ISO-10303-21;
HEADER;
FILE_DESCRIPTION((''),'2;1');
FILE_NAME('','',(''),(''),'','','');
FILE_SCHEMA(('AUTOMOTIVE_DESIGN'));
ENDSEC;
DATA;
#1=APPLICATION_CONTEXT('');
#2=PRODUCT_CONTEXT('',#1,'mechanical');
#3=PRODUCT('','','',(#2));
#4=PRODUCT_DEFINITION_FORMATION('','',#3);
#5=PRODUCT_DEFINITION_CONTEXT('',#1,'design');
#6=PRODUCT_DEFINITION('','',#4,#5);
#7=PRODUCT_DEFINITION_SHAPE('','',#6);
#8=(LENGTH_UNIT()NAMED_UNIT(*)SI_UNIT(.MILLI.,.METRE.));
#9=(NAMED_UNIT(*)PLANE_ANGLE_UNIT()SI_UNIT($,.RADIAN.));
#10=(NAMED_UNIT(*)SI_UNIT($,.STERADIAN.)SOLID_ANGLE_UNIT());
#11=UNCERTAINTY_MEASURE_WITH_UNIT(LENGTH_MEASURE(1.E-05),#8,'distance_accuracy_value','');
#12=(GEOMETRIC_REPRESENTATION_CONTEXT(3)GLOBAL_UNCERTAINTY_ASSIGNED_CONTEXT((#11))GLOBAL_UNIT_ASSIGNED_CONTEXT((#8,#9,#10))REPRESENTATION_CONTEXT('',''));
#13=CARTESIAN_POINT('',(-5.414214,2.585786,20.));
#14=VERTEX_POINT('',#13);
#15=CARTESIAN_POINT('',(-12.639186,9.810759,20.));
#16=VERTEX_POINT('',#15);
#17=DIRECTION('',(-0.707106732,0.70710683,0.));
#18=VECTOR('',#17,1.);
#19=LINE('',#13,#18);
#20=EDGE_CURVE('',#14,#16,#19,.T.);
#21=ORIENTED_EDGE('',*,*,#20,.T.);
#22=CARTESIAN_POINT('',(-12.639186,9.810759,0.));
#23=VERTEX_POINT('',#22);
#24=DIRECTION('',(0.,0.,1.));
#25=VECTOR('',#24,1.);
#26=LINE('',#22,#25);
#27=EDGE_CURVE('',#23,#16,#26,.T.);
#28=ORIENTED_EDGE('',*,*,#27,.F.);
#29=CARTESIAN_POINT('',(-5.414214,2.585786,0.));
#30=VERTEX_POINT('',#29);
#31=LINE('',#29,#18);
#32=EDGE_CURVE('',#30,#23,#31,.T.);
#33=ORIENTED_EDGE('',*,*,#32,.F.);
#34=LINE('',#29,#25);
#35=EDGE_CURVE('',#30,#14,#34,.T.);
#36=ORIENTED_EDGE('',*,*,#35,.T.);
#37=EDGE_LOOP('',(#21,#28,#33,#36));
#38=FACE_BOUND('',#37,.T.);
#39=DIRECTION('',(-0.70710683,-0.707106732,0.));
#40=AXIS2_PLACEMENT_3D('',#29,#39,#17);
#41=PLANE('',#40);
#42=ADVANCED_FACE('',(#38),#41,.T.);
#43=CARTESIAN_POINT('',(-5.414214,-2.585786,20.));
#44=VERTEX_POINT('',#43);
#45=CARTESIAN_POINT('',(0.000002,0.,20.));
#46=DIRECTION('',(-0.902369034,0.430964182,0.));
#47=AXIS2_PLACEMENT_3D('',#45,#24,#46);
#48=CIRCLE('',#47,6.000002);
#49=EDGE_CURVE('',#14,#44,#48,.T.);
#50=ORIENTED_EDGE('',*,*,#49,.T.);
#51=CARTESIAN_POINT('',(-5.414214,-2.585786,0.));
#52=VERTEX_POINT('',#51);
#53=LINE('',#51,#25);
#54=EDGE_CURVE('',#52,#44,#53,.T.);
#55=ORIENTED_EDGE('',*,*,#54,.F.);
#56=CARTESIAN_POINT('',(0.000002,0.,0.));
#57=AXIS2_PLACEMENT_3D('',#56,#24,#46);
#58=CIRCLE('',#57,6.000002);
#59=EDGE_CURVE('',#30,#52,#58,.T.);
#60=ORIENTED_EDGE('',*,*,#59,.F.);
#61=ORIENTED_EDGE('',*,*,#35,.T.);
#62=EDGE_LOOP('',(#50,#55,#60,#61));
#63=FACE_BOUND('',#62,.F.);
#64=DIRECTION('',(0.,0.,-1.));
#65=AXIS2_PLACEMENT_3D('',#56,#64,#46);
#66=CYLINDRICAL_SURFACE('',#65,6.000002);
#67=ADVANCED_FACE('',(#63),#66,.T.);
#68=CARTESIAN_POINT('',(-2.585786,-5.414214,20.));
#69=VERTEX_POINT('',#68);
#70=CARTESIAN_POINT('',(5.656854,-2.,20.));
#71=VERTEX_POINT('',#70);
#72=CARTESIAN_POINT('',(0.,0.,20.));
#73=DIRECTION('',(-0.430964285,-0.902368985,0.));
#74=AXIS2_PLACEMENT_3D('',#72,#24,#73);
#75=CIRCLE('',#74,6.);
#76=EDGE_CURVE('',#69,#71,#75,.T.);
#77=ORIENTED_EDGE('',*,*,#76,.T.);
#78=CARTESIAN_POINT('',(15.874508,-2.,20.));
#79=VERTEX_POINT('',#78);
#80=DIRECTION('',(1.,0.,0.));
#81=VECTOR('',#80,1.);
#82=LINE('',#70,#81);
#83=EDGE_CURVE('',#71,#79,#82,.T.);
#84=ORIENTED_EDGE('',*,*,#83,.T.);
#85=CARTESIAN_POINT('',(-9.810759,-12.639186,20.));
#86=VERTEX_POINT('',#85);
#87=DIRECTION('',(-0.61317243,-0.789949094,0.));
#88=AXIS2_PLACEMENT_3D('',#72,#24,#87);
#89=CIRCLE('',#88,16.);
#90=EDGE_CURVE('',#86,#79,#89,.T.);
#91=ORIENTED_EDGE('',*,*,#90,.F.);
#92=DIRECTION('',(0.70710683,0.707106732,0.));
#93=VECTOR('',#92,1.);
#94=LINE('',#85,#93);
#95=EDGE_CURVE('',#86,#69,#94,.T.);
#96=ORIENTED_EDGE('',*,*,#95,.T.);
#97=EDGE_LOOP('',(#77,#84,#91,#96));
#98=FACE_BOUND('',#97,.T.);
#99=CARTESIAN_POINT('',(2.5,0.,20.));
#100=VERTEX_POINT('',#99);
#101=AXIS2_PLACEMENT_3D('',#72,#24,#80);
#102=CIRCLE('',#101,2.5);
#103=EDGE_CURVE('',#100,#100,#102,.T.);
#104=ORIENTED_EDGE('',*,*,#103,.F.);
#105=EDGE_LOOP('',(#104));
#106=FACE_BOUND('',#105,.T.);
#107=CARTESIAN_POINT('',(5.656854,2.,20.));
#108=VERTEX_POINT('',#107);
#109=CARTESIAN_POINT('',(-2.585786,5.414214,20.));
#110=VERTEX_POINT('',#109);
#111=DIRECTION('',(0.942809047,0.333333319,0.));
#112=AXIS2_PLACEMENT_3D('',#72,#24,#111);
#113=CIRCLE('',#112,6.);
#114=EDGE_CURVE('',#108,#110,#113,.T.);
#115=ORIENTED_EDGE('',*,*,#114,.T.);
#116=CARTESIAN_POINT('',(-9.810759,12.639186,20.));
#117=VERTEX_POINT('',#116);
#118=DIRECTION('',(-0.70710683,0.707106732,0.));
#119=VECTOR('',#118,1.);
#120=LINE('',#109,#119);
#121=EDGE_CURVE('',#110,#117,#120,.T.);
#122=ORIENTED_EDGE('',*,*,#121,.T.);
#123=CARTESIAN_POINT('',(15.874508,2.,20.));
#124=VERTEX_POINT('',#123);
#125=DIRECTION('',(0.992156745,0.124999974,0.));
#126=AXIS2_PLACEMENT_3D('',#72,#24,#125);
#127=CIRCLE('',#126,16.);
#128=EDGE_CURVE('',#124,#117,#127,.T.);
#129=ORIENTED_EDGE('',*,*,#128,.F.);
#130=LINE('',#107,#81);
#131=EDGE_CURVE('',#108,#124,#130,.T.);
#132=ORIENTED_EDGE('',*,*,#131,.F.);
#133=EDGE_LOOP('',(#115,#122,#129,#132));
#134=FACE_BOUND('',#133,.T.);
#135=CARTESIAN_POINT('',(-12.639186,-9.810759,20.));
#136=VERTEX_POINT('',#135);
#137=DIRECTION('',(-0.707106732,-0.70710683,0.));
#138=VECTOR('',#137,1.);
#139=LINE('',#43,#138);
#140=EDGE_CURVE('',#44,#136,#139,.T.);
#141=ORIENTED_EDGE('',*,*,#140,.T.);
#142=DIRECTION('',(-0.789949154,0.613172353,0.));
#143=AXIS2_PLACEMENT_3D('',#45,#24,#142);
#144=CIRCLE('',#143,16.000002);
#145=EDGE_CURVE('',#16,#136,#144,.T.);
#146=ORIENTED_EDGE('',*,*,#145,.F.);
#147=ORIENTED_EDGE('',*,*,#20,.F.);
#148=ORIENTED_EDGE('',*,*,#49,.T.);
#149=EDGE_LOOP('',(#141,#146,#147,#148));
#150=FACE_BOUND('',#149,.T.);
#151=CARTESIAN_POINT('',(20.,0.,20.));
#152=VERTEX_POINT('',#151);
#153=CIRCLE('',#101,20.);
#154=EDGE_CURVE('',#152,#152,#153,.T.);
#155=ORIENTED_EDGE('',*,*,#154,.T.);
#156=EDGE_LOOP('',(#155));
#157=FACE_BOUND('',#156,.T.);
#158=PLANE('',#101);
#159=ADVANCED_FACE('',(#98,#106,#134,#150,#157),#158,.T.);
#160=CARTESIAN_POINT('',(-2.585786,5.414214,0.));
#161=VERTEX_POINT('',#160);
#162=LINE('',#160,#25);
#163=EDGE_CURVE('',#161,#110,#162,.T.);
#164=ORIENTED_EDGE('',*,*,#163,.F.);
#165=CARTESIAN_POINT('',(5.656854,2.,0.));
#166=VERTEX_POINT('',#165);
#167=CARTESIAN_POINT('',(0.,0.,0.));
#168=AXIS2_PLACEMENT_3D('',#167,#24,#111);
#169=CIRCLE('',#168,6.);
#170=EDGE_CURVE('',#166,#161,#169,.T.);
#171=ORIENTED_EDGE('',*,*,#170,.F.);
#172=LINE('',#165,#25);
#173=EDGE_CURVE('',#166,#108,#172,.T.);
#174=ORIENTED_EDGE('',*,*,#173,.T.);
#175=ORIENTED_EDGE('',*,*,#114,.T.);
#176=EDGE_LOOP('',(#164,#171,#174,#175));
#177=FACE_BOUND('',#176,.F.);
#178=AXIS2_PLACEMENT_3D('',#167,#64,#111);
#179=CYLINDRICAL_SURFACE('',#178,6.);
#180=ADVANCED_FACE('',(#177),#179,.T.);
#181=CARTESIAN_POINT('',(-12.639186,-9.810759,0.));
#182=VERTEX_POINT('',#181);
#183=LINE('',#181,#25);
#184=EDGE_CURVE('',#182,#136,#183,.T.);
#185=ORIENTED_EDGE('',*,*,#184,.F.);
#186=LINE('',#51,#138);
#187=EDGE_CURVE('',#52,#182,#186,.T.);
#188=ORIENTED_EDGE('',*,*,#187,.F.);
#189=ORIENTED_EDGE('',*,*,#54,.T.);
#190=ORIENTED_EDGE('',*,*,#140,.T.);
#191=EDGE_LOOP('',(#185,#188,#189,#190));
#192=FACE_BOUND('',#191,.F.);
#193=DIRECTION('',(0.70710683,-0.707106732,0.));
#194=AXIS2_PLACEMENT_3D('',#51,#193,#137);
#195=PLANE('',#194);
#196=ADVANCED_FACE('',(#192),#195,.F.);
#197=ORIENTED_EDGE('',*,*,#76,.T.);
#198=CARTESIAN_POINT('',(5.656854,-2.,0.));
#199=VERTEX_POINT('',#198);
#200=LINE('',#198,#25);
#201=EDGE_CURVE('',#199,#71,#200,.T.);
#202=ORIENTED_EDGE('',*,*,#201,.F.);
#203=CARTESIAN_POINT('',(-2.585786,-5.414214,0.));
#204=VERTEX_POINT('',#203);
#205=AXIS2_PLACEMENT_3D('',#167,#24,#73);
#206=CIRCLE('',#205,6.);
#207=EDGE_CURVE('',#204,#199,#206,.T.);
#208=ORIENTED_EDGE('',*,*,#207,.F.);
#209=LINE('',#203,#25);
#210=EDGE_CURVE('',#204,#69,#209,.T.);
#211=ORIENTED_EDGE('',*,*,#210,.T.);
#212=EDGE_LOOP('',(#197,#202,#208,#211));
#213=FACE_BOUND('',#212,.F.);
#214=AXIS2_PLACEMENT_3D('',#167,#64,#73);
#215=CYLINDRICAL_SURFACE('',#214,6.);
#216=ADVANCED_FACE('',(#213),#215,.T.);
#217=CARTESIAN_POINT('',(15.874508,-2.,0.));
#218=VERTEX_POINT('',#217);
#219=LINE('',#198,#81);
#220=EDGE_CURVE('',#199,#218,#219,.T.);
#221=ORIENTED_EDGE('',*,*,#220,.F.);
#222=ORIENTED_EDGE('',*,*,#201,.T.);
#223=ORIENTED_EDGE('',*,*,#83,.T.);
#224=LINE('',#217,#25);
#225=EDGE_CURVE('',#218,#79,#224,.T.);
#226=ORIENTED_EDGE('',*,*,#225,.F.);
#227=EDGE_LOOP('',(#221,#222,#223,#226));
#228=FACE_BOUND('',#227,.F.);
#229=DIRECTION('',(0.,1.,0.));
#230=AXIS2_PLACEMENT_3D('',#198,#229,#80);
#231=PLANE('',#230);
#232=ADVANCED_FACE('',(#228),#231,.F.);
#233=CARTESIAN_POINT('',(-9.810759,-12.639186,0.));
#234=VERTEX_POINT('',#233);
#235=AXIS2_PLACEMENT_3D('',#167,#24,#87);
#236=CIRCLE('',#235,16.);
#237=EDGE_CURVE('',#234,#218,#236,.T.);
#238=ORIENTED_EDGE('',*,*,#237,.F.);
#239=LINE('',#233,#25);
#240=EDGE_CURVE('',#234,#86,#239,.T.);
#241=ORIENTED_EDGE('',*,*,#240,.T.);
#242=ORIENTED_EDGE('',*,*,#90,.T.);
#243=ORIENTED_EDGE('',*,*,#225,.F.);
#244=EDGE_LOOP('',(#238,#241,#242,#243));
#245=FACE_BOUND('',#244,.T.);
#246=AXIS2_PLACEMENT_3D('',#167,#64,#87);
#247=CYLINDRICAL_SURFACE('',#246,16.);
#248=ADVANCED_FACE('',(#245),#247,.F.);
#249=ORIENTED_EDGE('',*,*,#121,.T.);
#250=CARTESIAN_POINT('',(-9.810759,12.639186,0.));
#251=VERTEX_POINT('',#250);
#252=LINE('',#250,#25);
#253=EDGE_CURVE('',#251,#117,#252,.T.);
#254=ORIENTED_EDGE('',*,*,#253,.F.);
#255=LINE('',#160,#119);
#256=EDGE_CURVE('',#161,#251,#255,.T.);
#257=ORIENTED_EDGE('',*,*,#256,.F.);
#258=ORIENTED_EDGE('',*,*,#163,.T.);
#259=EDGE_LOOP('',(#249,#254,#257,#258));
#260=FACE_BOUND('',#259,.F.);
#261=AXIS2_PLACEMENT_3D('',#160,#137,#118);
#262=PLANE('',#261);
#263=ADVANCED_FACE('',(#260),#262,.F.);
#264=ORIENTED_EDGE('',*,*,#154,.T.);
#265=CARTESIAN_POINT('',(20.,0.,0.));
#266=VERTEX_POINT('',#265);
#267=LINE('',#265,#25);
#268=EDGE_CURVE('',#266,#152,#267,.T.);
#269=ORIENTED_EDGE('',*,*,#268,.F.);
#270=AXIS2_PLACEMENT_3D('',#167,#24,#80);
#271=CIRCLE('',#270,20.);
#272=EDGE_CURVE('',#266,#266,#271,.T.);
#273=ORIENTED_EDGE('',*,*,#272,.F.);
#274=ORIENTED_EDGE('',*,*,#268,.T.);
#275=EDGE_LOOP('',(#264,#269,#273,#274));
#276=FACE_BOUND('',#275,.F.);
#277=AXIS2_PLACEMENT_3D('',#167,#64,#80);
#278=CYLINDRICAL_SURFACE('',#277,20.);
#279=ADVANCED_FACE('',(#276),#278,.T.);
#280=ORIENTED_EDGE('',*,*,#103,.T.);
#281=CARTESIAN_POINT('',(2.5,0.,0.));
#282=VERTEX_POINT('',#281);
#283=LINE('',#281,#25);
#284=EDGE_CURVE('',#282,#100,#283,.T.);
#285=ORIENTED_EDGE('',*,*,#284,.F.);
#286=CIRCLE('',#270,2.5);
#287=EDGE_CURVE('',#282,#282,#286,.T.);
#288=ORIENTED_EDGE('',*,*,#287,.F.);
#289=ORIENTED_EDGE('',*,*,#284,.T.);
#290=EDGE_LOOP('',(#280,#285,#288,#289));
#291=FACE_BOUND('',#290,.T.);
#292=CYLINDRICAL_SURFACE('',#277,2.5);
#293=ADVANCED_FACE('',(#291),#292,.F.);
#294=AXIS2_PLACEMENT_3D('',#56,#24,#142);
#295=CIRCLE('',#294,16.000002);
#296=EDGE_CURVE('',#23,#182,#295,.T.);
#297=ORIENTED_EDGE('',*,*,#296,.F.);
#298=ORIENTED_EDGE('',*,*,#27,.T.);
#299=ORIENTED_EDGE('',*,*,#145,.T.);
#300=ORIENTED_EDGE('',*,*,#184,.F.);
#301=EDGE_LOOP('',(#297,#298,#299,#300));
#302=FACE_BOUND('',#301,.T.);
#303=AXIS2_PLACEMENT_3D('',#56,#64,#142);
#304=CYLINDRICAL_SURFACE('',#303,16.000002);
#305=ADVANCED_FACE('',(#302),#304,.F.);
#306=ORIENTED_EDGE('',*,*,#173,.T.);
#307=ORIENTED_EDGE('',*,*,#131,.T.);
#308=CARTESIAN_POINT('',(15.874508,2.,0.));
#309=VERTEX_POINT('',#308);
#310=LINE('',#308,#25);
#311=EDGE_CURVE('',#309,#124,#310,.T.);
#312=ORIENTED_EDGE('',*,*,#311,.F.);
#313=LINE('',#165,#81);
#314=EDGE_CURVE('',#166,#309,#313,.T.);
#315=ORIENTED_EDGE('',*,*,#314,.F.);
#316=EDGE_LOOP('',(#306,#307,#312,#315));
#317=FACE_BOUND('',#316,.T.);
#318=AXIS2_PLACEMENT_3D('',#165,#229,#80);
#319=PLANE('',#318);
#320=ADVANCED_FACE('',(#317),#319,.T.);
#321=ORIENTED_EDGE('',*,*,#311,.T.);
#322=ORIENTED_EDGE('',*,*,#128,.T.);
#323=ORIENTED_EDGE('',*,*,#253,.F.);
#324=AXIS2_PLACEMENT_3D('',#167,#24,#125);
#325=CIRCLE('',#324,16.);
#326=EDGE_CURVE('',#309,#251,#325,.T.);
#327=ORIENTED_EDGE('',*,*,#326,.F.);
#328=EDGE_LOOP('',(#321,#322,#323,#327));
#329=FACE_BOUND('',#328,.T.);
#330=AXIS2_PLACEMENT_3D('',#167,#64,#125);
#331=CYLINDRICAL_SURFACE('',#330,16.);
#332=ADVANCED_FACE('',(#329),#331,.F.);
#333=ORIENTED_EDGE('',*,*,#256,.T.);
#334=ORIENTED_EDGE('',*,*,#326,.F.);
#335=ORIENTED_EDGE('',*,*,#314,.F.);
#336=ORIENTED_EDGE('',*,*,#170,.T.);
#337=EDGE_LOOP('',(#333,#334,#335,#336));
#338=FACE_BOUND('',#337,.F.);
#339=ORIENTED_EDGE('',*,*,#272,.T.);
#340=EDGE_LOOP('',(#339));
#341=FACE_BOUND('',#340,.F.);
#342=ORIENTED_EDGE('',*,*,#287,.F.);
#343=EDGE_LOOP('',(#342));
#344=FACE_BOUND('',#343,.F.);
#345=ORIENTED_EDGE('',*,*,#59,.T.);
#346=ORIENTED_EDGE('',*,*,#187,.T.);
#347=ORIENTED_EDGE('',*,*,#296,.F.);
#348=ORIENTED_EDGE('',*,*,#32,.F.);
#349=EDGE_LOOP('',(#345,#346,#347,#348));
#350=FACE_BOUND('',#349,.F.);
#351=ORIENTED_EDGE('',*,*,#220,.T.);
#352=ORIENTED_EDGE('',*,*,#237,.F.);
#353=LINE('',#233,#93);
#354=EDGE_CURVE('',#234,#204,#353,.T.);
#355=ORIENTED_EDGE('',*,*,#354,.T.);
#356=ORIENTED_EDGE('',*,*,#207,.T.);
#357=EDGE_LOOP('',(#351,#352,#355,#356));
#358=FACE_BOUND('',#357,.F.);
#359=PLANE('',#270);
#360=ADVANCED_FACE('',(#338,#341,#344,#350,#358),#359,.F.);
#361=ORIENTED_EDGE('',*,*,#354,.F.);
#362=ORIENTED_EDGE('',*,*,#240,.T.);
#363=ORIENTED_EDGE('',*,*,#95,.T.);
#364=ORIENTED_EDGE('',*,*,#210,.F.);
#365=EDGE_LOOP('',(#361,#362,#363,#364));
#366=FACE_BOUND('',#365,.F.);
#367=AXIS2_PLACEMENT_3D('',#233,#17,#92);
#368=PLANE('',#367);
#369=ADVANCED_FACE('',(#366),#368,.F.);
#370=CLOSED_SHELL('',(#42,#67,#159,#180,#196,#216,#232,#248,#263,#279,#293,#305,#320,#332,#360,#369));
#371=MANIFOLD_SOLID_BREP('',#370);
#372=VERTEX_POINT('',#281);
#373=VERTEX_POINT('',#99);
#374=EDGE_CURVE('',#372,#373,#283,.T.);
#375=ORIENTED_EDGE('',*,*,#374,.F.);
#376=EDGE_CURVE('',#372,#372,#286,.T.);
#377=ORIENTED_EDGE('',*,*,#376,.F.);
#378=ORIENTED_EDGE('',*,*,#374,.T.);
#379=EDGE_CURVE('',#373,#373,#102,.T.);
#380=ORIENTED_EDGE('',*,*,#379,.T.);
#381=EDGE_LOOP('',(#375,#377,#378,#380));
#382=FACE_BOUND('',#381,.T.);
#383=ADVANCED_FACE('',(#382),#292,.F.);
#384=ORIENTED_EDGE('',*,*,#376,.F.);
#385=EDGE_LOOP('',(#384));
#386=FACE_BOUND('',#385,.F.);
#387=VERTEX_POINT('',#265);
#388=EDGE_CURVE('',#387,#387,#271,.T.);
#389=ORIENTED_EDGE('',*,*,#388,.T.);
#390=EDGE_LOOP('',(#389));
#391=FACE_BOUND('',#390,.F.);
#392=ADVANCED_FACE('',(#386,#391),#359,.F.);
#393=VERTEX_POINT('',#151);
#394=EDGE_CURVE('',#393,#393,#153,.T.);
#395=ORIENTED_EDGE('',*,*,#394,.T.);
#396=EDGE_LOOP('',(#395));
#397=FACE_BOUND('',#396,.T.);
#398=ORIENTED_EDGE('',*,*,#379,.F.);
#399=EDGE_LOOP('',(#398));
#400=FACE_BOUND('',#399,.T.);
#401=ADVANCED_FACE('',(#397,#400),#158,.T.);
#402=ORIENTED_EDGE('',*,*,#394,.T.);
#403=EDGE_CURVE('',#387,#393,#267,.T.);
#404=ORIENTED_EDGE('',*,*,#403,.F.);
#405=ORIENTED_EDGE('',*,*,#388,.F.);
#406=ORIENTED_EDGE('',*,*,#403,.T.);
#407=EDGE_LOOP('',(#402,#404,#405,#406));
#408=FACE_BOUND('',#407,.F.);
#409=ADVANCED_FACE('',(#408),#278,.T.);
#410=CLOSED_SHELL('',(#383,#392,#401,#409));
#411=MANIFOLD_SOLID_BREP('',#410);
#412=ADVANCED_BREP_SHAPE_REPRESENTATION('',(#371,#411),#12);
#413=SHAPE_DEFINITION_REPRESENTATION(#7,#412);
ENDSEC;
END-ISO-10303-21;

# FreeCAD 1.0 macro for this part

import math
import FreeCAD as App
import Part
import Sketcher
from FreeCAD import Vector
Q = App.Units.Quantity

doc = App.newDocument("Part")
body = doc.addObject("PartDesign::Body", "Body")

sketch1 = body.newObject("Sketcher::SketchObject", "Sketch")
sketch1.AttachmentSupport = (doc.getObject("XY_Plane"), [""])
sketch1.MapMode = "FlatFace"
sketch1.addGeometry([
    Part.Circle(Vector(0, 0, 0), Vector(0, 0, 1), 20),
    Part.ArcOfCircle(Part.Circle(Vector(0, 0, 0), Vector(0, 0, 1), 6), math.radians(-116), math.radians(-19)),
    Part.LineSegment(Vector(5.7, -2, 0), Vector(15.9, -2, 0)),
    Part.ArcOfCircle(Part.Circle(Vector(0, 0, 0), Vector(0, 0, 1), 16), math.radians(-128), math.radians(-7)),
    Part.LineSegment(Vector(-9.8, -12.6, 0), Vector(-2.6, -5.4, 0)),
    Part.LineSegment(Vector(-12.6, 9.8, 0), Vector(-5.4, 2.6, 0)),
    Part.ArcOfCircle(Part.Circle(Vector(0, 0, 0), Vector(0, 0, 1), 6), math.radians(154), math.radians(206)),
    Part.LineSegment(Vector(-5.4, -2.6, 0), Vector(-12.6, -9.8, 0)),
    Part.ArcOfCircle(Part.Circle(Vector(0, 0, 0), Vector(0, 0, 1), 16), math.radians(142), math.radians(218)),
    Part.Circle(Vector(0, 0, 0), Vector(0, 0, 1), 2.5),
    Part.ArcOfCircle(Part.Circle(Vector(0, 0, 0), Vector(0, 0, 1), 16), math.radians(7), math.radians(128)),
    Part.LineSegment(Vector(15.9, 2, 0), Vector(5.7, 2, 0)),
    Part.ArcOfCircle(Part.Circle(Vector(0, 0, 0), Vector(0, 0, 1), 6), math.radians(19), math.radians(116)),
    Part.LineSegment(Vector(-2.6, 5.4, 0), Vector(-9.8, 12.6, 0)),
], False)
sketch1.addConstraint([
    Sketcher.Constraint("Coincident", 1, 2, 2, 1),
    Sketcher.Constraint("Coincident", 2, 2, 3, 2),
    Sketcher.Constraint("Coincident", 3, 1, 4, 1),
    Sketcher.Constraint("Coincident", 4, 2, 1, 1),
    Sketcher.Constraint("Coincident", 5, 2, 6, 1),
    Sketcher.Constraint("Coincident", 6, 2, 7, 1),
    Sketcher.Constraint("Coincident", 7, 2, 8, 2),
    Sketcher.Constraint("Coincident", 8, 1, 5, 1),
    Sketcher.Constraint("Coincident", 10, 1, 11, 1),
    Sketcher.Constraint("Coincident", 11, 2, 12, 1),
    Sketcher.Constraint("Coincident", 12, 2, 13, 1),
    Sketcher.Constraint("Coincident", 13, 2, 10, 2),
    Sketcher.Constraint("Horizontal", 2),
    Sketcher.Constraint("Horizontal", 11),
    Sketcher.Constraint("Coincident", 0, 3, -1, 1),
    Sketcher.Constraint("Coincident", 1, 3, -1, 1),
    Sketcher.Constraint("Coincident", 3, 3, -1, 1),
    Sketcher.Constraint("Coincident", 6, 3, -1, 1),
    Sketcher.Constraint("Coincident", 8, 3, -1, 1),
    Sketcher.Constraint("Coincident", 9, 3, -1, 1),
    Sketcher.Constraint("Coincident", 10, 3, -1, 1),
    Sketcher.Constraint("Coincident", 12, 3, -1, 1),
    Sketcher.Constraint("Equal", 3, 10),
    Sketcher.Constraint("Equal", 1, 12),
    Sketcher.Constraint("Perpendicular", 4, 5),
    Sketcher.Constraint("Perpendicular", 5, 7),
    Sketcher.Constraint("Perpendicular", 7, 13),
    Sketcher.Constraint("Vertical", 5, 2, 6, 2),
    Sketcher.Constraint("Vertical", 7, 2, 8, 1),
    Sketcher.Constraint("Vertical", 2, 2, 10, 1),
    Sketcher.Constraint("Vertical", 4, 2, 12, 2),
    Sketcher.Constraint("Equal", 4, 5),
    Sketcher.Constraint("Diameter", 0, Q("40 mm")),
    Sketcher.Constraint("Diameter", 9, Q("5 mm")),
    Sketcher.Constraint("Radius", 1, Q("6 mm")),
    Sketcher.Constraint("Radius", 3, Q("16 mm")),
    Sketcher.Constraint("DistanceY", 1, 2, -1, 1, Q("2 mm")),
    Sketcher.Constraint("Radius", 6, Q("6.000002 mm")),
    Sketcher.Constraint("Radius", 8, Q("16.000002 mm")),
    Sketcher.Constraint("DistanceX", 7, 2, 4, 2, Q("10.0534 mm")),
])
pad1 = body.newObject("PartDesign::Pad", "Pad")
pad1.Profile = sketch1
pad1.Length = 20
body2 = doc.addObject("PartDesign::Body", "Body001")

sketch2 = body2.newObject("Sketcher::SketchObject", "Sketch001")
sketch2.AttachmentSupport = (doc.getObject("XY_Plane001"), [""])
sketch2.MapMode = "FlatFace"
sketch2.addGeometry([
    Part.Circle(Vector(0, 0, 0), Vector(0, 0, 1), 20),
    Part.Circle(Vector(0, 0, 0), Vector(0, 0, 1), 2.5),
], False)
sketch2.addConstraint([
    Sketcher.Constraint("Coincident", 0, 3, -1, 1),
    Sketcher.Constraint("Coincident", 1, 3, -1, 1),
    Sketcher.Constraint("Diameter", 0, Q("40 mm")),
    Sketcher.Constraint("Diameter", 1, Q("5 mm")),
])
pad2 = body2.newObject("PartDesign::Pad", "Pad001")
pad2.Profile = sketch2
pad2.Length = 20

doc.recompute()
